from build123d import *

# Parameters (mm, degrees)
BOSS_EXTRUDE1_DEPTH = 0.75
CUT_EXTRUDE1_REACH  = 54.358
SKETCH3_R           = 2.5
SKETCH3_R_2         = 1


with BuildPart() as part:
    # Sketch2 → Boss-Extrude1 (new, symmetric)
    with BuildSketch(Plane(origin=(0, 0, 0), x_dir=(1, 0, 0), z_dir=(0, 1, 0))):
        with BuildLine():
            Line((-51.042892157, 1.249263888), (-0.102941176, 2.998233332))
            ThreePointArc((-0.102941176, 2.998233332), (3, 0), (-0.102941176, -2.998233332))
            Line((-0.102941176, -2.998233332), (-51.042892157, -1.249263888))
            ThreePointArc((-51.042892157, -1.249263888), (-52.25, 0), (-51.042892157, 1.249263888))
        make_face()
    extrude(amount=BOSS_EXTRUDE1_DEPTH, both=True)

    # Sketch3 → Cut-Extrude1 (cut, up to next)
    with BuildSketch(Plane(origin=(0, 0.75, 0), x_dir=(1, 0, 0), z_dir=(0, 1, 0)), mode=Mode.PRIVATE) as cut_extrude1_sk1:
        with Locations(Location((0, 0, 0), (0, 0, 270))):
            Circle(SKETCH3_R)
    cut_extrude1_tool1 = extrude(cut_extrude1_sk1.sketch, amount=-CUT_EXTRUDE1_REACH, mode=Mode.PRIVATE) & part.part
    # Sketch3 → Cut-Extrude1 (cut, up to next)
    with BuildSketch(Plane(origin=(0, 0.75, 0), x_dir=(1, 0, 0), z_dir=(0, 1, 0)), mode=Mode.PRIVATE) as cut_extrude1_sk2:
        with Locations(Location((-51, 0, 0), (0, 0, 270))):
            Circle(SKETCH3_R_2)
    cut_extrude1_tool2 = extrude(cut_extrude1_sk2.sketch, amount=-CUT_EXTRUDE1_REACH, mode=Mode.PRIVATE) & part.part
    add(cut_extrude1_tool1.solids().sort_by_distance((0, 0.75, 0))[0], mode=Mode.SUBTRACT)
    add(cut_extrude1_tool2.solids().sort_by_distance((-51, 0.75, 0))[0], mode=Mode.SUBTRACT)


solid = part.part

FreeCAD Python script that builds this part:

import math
import FreeCAD as App
import Part
import Sketcher

doc = App.newDocument("Part")
params = doc.addObject("Spreadsheet::Sheet", "Params")
for row, (alias, value) in enumerate([
    ("sketch1_radius", "3 mm"),
    ("sketch1_radius2", "1.25 mm"),
    ("pad1_length", "1.5 mm"),
    ("sketch2_diameter", "5 mm"),
    ("sketch3_diameter", "2 mm"),
], start=1):
    params.set(f"A{row}", alias)
    params.set(f"B{row}", "=" + value)
    params.setAlias(f"B{row}", alias)

body = doc.addObject("PartDesign::Body", "Body")

# Sketch on XZ plane
sketch1 = doc.addObject("Sketcher::SketchObject", "Sketch")
body.addObject(sketch1)
sketch1.AttachmentSupport = (doc.XZ_Plane, [""])
sketch1.MapMode = "FlatFace"
sketch1.addGeometry(Part.LineSegment(App.Vector(-0.102941, -2.998233, 0), App.Vector(-51.042892, -1.249264, 0)), False)
sketch1.addGeometry(Part.ArcOfCircle(Part.Circle(App.Vector(-51, 0, 0), App.Vector(0, 0, 1), 1.25), math.radians(91.966418), math.radians(268.033582)), False)
sketch1.addGeometry(Part.LineSegment(App.Vector(-51.042892, 1.249264, 0), App.Vector(-0.102941, 2.998233, 0)), False)
sketch1.addGeometry(Part.ArcOfCircle(Part.Circle(App.Vector(0, 0, 0), App.Vector(0, 0, 1), 3), math.radians(-91.966418), math.radians(91.966418)), False)
sketch1.addConstraint(Sketcher.Constraint("Tangent", 0, 2, 1, 2))
sketch1.addConstraint(Sketcher.Constraint("Tangent", 1, 1, 2, 1))
sketch1.addConstraint(Sketcher.Constraint("Tangent", 2, 2, 3, 2))
sketch1.addConstraint(Sketcher.Constraint("Tangent", 3, 1, 0, 1))
sketch1.addConstraint(Sketcher.Constraint("Coincident", 3, 3, -1, 1))
sketch1.addConstraint(Sketcher.Constraint("PointOnObject", 1, 3, -1))
sketch1.addConstraint(Sketcher.Constraint("Radius", 3, 3.0))
sketch1.addConstraint(Sketcher.Constraint("Radius", 1, 1.25))
sketch1.addConstraint(Sketcher.Constraint("DistanceX", 1, 3, -1, 1, 51.0))
sketch1.setExpression("Constraints[6]", "Params.sketch1_radius")
sketch1.setExpression("Constraints[7]", "Params.sketch1_radius2")
pad1 = doc.addObject("PartDesign::Pad", "Pad")
body.addObject(pad1)
pad1.Profile = sketch1
pad1.setExpression("Length", "Params.pad1_length")
pad1.Midplane = True

# Sketch on XZ plane
sketch2 = doc.addObject("Sketcher::SketchObject", "Sketch001")
body.addObject(sketch2)
sketch2.AttachmentSupport = (doc.XZ_Plane, [""])
sketch2.MapMode = "FlatFace"
sketch2.AttachmentOffset = App.Placement(App.Vector(0, 0, -0.75), App.Rotation())
sketch2.addGeometry(Part.Circle(App.Vector(0, 0, 0), App.Vector(0, 0, 1), 2.5), False)
sketch2.addConstraint(Sketcher.Constraint("Coincident", 0, 3, -1, 1))
sketch2.addConstraint(Sketcher.Constraint("Diameter", 0, 5.0))
sketch2.setExpression("Constraints[1]", "Params.sketch2_diameter")
pocket1 = doc.addObject("PartDesign::Pocket", "Pocket")
body.addObject(pocket1)
pocket1.Profile = sketch2
pocket1.Type = "UpToFirst"
pocket1.Reversed = True

# Sketch on XZ plane
sketch3 = doc.addObject("Sketcher::SketchObject", "Sketch002")
body.addObject(sketch3)
sketch3.AttachmentSupport = (doc.XZ_Plane, [""])
sketch3.MapMode = "FlatFace"
sketch3.AttachmentOffset = App.Placement(App.Vector(0, 0, -0.75), App.Rotation())
sketch3.addGeometry(Part.Circle(App.Vector(-51, 0, 0), App.Vector(0, 0, 1), 1), False)
sketch3.addConstraint(Sketcher.Constraint("PointOnObject", 0, 3, -1))
sketch3.addConstraint(Sketcher.Constraint("Diameter", 0, 2.0))
sketch3.addConstraint(Sketcher.Constraint("DistanceX", 0, 3, -1, 1, 51.0))
sketch3.setExpression("Constraints[1]", "Params.sketch3_diameter")
pocket2 = doc.addObject("PartDesign::Pocket", "Pocket001")
body.addObject(pocket2)
pocket2.Profile = sketch3
pocket2.Type = "UpToFirst"
pocket2.Reversed = True

doc.recompute()
